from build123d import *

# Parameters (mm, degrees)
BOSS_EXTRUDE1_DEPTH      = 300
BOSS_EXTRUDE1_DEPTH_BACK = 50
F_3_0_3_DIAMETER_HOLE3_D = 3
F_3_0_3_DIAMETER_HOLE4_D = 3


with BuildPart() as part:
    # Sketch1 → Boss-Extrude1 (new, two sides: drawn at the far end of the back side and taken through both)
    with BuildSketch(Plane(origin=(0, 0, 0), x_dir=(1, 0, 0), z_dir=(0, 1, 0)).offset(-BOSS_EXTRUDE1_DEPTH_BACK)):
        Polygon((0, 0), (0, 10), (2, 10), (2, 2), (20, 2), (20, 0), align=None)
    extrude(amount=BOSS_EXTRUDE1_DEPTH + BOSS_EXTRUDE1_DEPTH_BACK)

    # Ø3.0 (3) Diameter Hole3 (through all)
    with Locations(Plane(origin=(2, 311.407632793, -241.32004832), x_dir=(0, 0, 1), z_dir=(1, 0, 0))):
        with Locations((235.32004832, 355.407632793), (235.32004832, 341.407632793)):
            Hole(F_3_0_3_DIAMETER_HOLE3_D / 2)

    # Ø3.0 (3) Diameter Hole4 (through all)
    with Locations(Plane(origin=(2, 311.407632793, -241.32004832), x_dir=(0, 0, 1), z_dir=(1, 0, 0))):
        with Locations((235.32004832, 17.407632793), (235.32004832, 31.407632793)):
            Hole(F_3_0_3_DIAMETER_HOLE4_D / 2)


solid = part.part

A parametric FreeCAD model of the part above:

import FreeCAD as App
import Part
import Sketcher

V = App.Vector

doc = App.newDocument("Part")
params = doc.addObject("Spreadsheet::Sheet", "Params")
for row, (alias, value) in enumerate([
    ("sketch1_width", "20 mm"),
    ("sketch1_width2", "18 mm"),
    ("sketch1_height", "10 mm"),
    ("pad1_length", "300 mm"),
    ("pad1_length2", "50 mm"),
    ("sketch2_diameter", "3 mm"),
    ("hole_diameter", "3 mm"),
    ("sketch3_diameter", "3 mm"),
    ("hole2_diameter", "3 mm"),
], start=1):
    params.set(f"A{row}", alias)
    params.set(f"B{row}", "=" + value)
    params.setAlias(f"B{row}", alias)

body = doc.addObject("PartDesign::Body", "Body")

# Sketch on XZ plane
sketch1 = doc.addObject("Sketcher::SketchObject", "Sketch")
body.addObject(sketch1)
sketch1.AttachmentSupport = (doc.XZ_Plane, [""])
sketch1.MapMode = "FlatFace"
sketch1.addGeometry([
    Part.LineSegment(V(0, -10, 0), V(0, 0, 0)),  # 0
    Part.LineSegment(V(0, 0, 0), V(20, 0, 0)),  # 1
    Part.LineSegment(V(20, 0, 0), V(20, -2, 0)),  # 2
    Part.LineSegment(V(20, -2, 0), V(2, -2, 0)),  # 3
    Part.LineSegment(V(2, -2, 0), V(2, -10, 0)),  # 4
    Part.LineSegment(V(2, -10, 0), V(0, -10, 0)),  # 5
], False)
sketch1.addConstraint([
    Sketcher.Constraint("Coincident", 0, 2, 1, 1),
    Sketcher.Constraint("Coincident", 1, 2, 2, 1),
    Sketcher.Constraint("Coincident", 2, 2, 3, 1),
    Sketcher.Constraint("Coincident", 3, 2, 4, 1),
    Sketcher.Constraint("Coincident", 4, 2, 5, 1),
    Sketcher.Constraint("Coincident", 5, 2, 0, 1),
    Sketcher.Constraint("Vertical", 0),
    Sketcher.Constraint("Horizontal", 1),
    Sketcher.Constraint("Vertical", 2),
    Sketcher.Constraint("Horizontal", 3),
    Sketcher.Constraint("Vertical", 4),
    Sketcher.Constraint("Horizontal", 5),
    Sketcher.Constraint("Coincident", 0, 2, -1, 1),
    Sketcher.Constraint("Equal", 5, 2),
    Sketcher.Constraint("DistanceX", 1, 1, 1, 2, 20.0),
    Sketcher.Constraint("DistanceX", 3, 2, 3, 1, 18.0),
    Sketcher.Constraint("DistanceY", 0, 1, 0, 2, 10.0),
])
sketch1.setExpression("Constraints[14]", "Params.sketch1_width")
sketch1.setExpression("Constraints[15]", "Params.sketch1_width2")
sketch1.setExpression("Constraints[16]", "Params.sketch1_height")
pad1 = doc.addObject("PartDesign::Pad", "Pad")
body.addObject(pad1)
pad1.Profile = sketch1
pad1.Type = "TwoLengths"
pad1.setExpression("Length", "Params.pad1_length")
pad1.setExpression("Length2", "Params.pad1_length2")
pad1.Reversed = True

# Sketch on YZ plane
sketch2 = doc.addObject("Sketcher::SketchObject", "Sketch001")
body.addObject(sketch2)
sketch2.AttachmentSupport = (doc.YZ_Plane, [""])
sketch2.MapMode = "FlatFace"
sketch2.AttachmentOffset = App.Placement(V(0, 0, 2), App.Rotation())
sketch2.addGeometry([
    Part.Circle(V(-44, -6, 0), V(0, 0, 1), 1.5),
    Part.Circle(V(-30, -6, 0), V(0, 0, 1), 1.5),
], False)
sketch2.addConstraint([
    Sketcher.Constraint("Equal", 0, 1),
    Sketcher.Constraint("Horizontal", 0, 3, 1, 3),
    Sketcher.Constraint("Diameter", 0, 3.0),
    Sketcher.Constraint("DistanceX", 0, 3, -1, 1, 44.0),
    Sketcher.Constraint("DistanceY", 0, 3, -1, 1, 6.0),
    Sketcher.Constraint("DistanceX", 1, 3, -1, 1, 30.0),
])
sketch2.setExpression("Constraints[2]", "Params.sketch2_diameter")
doc.recompute()
hole = doc.addObject("PartDesign::Hole", "Hole")
body.addObject(hole)
hole.Profile = sketch2
hole.ThreadType = "None"
hole.setExpression("Diameter", "Params.hole_diameter")
hole.DepthType = "ThroughAll"

# Sketch on YZ plane
sketch3 = doc.addObject("Sketcher::SketchObject", "Sketch002")
body.addObject(sketch3)
sketch3.AttachmentSupport = (doc.YZ_Plane, [""])
sketch3.MapMode = "FlatFace"
sketch3.AttachmentOffset = App.Placement(V(0, 0, 2), App.Rotation())
sketch3.addGeometry([
    Part.Circle(V(294, -6, 0), V(0, 0, 1), 1.5),
    Part.Circle(V(280, -6, 0), V(0, 0, 1), 1.5),
], False)
sketch3.addConstraint([
    Sketcher.Constraint("Equal", 0, 1),
    Sketcher.Constraint("Horizontal", 0, 3, 1, 3),
    Sketcher.Constraint("Diameter", 0, 3.0),
    Sketcher.Constraint("DistanceX", -1, 1, 0, 3, 294.0),
    Sketcher.Constraint("DistanceY", 0, 3, -1, 1, 6.0),
    Sketcher.Constraint("DistanceX", -1, 1, 1, 3, 280.0),
])
sketch3.setExpression("Constraints[2]", "Params.sketch3_diameter")
doc.recompute()
hole2 = doc.addObject("PartDesign::Hole", "Hole001")
body.addObject(hole2)
hole2.Profile = sketch3
hole2.ThreadType = "None"
hole2.setExpression("Diameter", "Params.hole2_diameter")
hole2.DepthType = "ThroughAll"

doc.recompute()
